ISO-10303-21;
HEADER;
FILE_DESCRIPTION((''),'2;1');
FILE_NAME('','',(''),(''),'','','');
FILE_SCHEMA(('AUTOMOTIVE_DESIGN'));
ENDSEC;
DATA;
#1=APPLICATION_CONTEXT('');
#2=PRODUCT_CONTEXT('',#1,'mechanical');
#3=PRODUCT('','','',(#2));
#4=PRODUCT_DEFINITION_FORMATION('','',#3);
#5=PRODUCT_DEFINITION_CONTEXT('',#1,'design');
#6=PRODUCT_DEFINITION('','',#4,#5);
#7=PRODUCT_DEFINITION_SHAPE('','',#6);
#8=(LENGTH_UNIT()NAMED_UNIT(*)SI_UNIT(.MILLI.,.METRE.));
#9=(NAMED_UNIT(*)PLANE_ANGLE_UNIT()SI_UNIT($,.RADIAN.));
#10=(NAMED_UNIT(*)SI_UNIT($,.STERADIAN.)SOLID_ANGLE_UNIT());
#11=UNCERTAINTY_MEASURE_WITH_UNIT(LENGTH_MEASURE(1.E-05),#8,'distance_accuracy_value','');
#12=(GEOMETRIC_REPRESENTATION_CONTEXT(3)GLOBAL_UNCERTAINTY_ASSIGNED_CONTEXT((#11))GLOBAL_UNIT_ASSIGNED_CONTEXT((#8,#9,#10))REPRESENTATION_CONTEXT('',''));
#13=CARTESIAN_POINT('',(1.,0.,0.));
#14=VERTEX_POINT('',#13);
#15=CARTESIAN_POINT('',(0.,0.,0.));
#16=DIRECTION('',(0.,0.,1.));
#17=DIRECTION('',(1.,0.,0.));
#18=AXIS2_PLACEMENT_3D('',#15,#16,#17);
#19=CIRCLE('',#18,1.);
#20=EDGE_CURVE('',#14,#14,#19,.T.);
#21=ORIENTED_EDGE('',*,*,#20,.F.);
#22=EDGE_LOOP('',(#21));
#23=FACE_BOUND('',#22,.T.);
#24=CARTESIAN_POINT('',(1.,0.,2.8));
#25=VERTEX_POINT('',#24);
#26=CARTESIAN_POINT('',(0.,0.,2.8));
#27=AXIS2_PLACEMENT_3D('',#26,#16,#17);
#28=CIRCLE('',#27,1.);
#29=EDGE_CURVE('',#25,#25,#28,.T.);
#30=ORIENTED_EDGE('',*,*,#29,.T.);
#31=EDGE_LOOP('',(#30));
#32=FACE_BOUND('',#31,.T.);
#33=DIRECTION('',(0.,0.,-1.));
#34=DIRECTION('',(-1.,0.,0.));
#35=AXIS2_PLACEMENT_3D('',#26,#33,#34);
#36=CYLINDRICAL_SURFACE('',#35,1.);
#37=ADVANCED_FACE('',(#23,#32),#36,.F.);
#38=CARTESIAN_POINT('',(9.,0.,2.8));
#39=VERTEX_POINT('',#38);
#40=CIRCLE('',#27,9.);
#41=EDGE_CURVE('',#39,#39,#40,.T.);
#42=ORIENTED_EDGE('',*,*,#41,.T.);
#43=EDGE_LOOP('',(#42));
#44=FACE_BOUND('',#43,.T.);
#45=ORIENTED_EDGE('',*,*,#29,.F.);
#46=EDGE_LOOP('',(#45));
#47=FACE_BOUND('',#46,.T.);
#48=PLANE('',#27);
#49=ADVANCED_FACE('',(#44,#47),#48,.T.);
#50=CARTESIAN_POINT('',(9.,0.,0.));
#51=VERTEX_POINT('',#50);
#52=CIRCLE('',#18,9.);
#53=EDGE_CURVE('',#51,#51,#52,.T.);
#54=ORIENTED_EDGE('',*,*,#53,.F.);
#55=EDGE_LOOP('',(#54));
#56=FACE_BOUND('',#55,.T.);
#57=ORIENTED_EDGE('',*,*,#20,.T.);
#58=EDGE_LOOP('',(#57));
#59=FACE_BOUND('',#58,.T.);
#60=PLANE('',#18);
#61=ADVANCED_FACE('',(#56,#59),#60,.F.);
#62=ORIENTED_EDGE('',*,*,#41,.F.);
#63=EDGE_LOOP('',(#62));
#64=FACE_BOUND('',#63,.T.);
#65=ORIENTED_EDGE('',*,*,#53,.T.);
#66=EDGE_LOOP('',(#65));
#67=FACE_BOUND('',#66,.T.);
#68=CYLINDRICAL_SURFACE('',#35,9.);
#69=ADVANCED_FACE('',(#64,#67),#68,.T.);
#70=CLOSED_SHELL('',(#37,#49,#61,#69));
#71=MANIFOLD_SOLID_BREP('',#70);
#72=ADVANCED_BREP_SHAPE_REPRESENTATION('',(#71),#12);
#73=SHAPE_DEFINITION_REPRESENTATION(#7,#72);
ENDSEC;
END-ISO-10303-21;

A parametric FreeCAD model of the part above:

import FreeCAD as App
import Part
import Sketcher

doc = App.newDocument("Part")
body = doc.addObject("PartDesign::Body", "Body")

sketch1 = body.newObject("Sketcher::SketchObject", "Sketch")
sketch1.AttachmentSupport = (doc.getObject("XY_Plane"), [""])
sketch1.MapMode = "FlatFace"
sketch1.addGeometry([
    Part.Circle(App.Vector(0, 0, 0), App.Vector(0, 0, 1), 9),
    Part.Circle(App.Vector(0, 0, 0), App.Vector(0, 0, 1), 1),
], False)
sketch1.addConstraint([
    Sketcher.Constraint("Coincident", 0, 3, -1, 1),
    Sketcher.Constraint("Coincident", 1, 3, -1, 1),
    Sketcher.Constraint("Diameter", 0, 18.0),
    Sketcher.Constraint("Diameter", 1, 2.0),
])
pad1 = body.newObject("PartDesign::Pad", "Pad")
pad1.Profile = sketch1
pad1.Length = 2.8

doc.recompute()
